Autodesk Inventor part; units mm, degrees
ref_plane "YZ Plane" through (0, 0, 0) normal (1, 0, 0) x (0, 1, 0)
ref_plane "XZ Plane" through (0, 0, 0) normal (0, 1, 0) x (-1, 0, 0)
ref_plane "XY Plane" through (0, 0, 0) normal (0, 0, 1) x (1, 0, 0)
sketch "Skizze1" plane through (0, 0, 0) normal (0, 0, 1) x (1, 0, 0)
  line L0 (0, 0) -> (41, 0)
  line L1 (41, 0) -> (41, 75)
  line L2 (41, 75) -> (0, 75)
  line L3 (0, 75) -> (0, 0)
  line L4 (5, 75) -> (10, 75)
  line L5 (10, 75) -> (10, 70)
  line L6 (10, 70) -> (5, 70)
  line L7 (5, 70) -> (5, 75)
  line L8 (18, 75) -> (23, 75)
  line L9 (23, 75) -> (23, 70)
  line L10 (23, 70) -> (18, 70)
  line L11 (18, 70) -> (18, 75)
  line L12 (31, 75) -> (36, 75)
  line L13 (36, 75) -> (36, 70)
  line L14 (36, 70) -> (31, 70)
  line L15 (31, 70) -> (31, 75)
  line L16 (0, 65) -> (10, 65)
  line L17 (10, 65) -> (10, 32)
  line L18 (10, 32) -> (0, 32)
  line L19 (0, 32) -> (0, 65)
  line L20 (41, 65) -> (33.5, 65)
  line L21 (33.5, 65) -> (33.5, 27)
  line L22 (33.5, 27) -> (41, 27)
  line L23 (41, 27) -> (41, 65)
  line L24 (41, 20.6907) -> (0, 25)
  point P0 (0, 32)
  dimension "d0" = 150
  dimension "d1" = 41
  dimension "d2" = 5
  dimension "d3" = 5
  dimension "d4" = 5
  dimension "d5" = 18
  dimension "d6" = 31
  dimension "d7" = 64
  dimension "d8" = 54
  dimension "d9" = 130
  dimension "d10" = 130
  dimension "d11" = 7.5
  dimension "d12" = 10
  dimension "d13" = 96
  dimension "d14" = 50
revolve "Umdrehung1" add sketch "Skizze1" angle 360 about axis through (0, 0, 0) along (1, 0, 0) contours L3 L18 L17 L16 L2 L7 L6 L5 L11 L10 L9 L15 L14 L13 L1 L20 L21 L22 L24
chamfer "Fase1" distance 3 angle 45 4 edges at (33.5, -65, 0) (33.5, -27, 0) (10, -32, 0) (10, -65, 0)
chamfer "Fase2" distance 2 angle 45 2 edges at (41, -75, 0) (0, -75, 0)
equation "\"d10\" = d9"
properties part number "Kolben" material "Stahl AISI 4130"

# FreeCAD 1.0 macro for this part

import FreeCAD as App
import Part
import Sketcher

V = App.Vector
Q = App.Units.Quantity


def edges_at(feature, points):
    """Names of the edges that pass closest to the given points."""
    edges = feature.Shape.Edges
    near = lambda p: min(range(len(edges)), key=lambda i: edges[i].distToShape(Part.Vertex(*p))[0])
    return sorted({f"Edge{near(p) + 1}" for p in points})

doc = App.newDocument("Part")
body = doc.addObject("PartDesign::Body", "Body")

sketch1 = body.newObject("Sketcher::SketchObject", "Sketch")
sketch1.AttachmentSupport = (doc.getObject("XY_Plane"), [""])
sketch1.MapMode = "FlatFace"
sketch1.addGeometry(Part.LineSegment(V(0, 32, 0), V(0, 25, 0)), False)
sketch1.addGeometry(Part.LineSegment(V(0, 25, 0), V(41, 20.6907, 0)), False)
sketch1.addGeometry(Part.LineSegment(V(41, 20.6907, 0), V(41, 27, 0)), False)
sketch1.addGeometry(Part.LineSegment(V(41, 27, 0), V(33.5, 27, 0)), False)
sketch1.addGeometry(Part.LineSegment(V(33.5, 27, 0), V(33.5, 65, 0)), False)
sketch1.addGeometry(Part.LineSegment(V(33.5, 65, 0), V(41, 65, 0)), False)
sketch1.addGeometry(Part.LineSegment(V(41, 65, 0), V(41, 75, 0)), False)
sketch1.addGeometry(Part.LineSegment(V(41, 75, 0), V(36, 75, 0)), False)
sketch1.addGeometry(Part.LineSegment(V(36, 75, 0), V(36, 70, 0)), False)
sketch1.addGeometry(Part.LineSegment(V(36, 70, 0), V(31, 70, 0)), False)
sketch1.addGeometry(Part.LineSegment(V(31, 70, 0), V(31, 75, 0)), False)
sketch1.addGeometry(Part.LineSegment(V(31, 75, 0), V(23, 75, 0)), False)
sketch1.addGeometry(Part.LineSegment(V(23, 75, 0), V(23, 70, 0)), False)
sketch1.addGeometry(Part.LineSegment(V(23, 70, 0), V(18, 70, 0)), False)
sketch1.addGeometry(Part.LineSegment(V(18, 70, 0), V(18, 75, 0)), False)
sketch1.addGeometry(Part.LineSegment(V(18, 75, 0), V(10, 75, 0)), False)
sketch1.addGeometry(Part.LineSegment(V(10, 75, 0), V(10, 70, 0)), False)
sketch1.addGeometry(Part.LineSegment(V(10, 70, 0), V(5, 70, 0)), False)
sketch1.addGeometry(Part.LineSegment(V(5, 70, 0), V(5, 75, 0)), False)
sketch1.addGeometry(Part.LineSegment(V(5, 75, 0), V(0, 75, 0)), False)
sketch1.addGeometry(Part.LineSegment(V(0, 75, 0), V(0, 65, 0)), False)
sketch1.addGeometry(Part.LineSegment(V(0, 65, 0), V(10, 65, 0)), False)
sketch1.addGeometry(Part.LineSegment(V(10, 65, 0), V(10, 32, 0)), False)
sketch1.addGeometry(Part.LineSegment(V(10, 32, 0), V(0, 32, 0)), False)
sketch1.addConstraint(Sketcher.Constraint("Coincident", 0, 2, 1, 1))
sketch1.addConstraint(Sketcher.Constraint("Coincident", 1, 2, 2, 1))
sketch1.addConstraint(Sketcher.Constraint("Coincident", 2, 2, 3, 1))
sketch1.addConstraint(Sketcher.Constraint("Coincident", 3, 2, 4, 1))
sketch1.addConstraint(Sketcher.Constraint("Coincident", 4, 2, 5, 1))
sketch1.addConstraint(Sketcher.Constraint("Coincident", 5, 2, 6, 1))
sketch1.addConstraint(Sketcher.Constraint("Coincident", 6, 2, 7, 1))
sketch1.addConstraint(Sketcher.Constraint("Coincident", 7, 2, 8, 1))
sketch1.addConstraint(Sketcher.Constraint("Coincident", 8, 2, 9, 1))
sketch1.addConstraint(Sketcher.Constraint("Coincident", 9, 2, 10, 1))
sketch1.addConstraint(Sketcher.Constraint("Coincident", 10, 2, 11, 1))
sketch1.addConstraint(Sketcher.Constraint("Coincident", 11, 2, 12, 1))
sketch1.addConstraint(Sketcher.Constraint("Coincident", 12, 2, 13, 1))
sketch1.addConstraint(Sketcher.Constraint("Coincident", 13, 2, 14, 1))
sketch1.addConstraint(Sketcher.Constraint("Coincident", 14, 2, 15, 1))
sketch1.addConstraint(Sketcher.Constraint("Coincident", 15, 2, 16, 1))
sketch1.addConstraint(Sketcher.Constraint("Coincident", 16, 2, 17, 1))
sketch1.addConstraint(Sketcher.Constraint("Coincident", 17, 2, 18, 1))
sketch1.addConstraint(Sketcher.Constraint("Coincident", 18, 2, 19, 1))
sketch1.addConstraint(Sketcher.Constraint("Coincident", 19, 2, 20, 1))
sketch1.addConstraint(Sketcher.Constraint("Coincident", 20, 2, 21, 1))
sketch1.addConstraint(Sketcher.Constraint("Coincident", 21, 2, 22, 1))
sketch1.addConstraint(Sketcher.Constraint("Coincident", 22, 2, 23, 1))
sketch1.addConstraint(Sketcher.Constraint("Coincident", 23, 2, 0, 1))
sketch1.addConstraint(Sketcher.Constraint("Vertical", 0))
sketch1.addConstraint(Sketcher.Constraint("Vertical", 2))
sketch1.addConstraint(Sketcher.Constraint("Horizontal", 3))
sketch1.addConstraint(Sketcher.Constraint("Vertical", 4))
sketch1.addConstraint(Sketcher.Constraint("Horizontal", 5))
sketch1.addConstraint(Sketcher.Constraint("Vertical", 6))
sketch1.addConstraint(Sketcher.Constraint("Horizontal", 7))
sketch1.addConstraint(Sketcher.Constraint("Vertical", 8))
sketch1.addConstraint(Sketcher.Constraint("Horizontal", 9))
sketch1.addConstraint(Sketcher.Constraint("Vertical", 10))
sketch1.addConstraint(Sketcher.Constraint("Horizontal", 11))
sketch1.addConstraint(Sketcher.Constraint("Vertical", 12))
sketch1.addConstraint(Sketcher.Constraint("Horizontal", 13))
sketch1.addConstraint(Sketcher.Constraint("Vertical", 14))
sketch1.addConstraint(Sketcher.Constraint("Horizontal", 15))
sketch1.addConstraint(Sketcher.Constraint("Vertical", 16))
sketch1.addConstraint(Sketcher.Constraint("Horizontal", 17))
sketch1.addConstraint(Sketcher.Constraint("Vertical", 18))
sketch1.addConstraint(Sketcher.Constraint("Horizontal", 19))
sketch1.addConstraint(Sketcher.Constraint("Vertical", 20))
sketch1.addConstraint(Sketcher.Constraint("Horizontal", 21))
sketch1.addConstraint(Sketcher.Constraint("Vertical", 22))
sketch1.addConstraint(Sketcher.Constraint("Horizontal", 23))
sketch1.addConstraint(Sketcher.Constraint("PointOnObject", 0, 2, -2))
sketch1.addConstraint(Sketcher.Constraint("PointOnObject", 19, 2, -2))
sketch1.addConstraint(Sketcher.Constraint("Horizontal", 7, 2, 10, 2))
sketch1.addConstraint(Sketcher.Constraint("Horizontal", 9, 2, 12, 2))
sketch1.addConstraint(Sketcher.Constraint("Horizontal", 11, 2, 14, 2))
sketch1.addConstraint(Sketcher.Constraint("Horizontal", 13, 2, 16, 2))
sketch1.addConstraint(Sketcher.Constraint("Horizontal", 15, 2, 18, 2))
sketch1.addConstraint(Sketcher.Constraint("Horizontal", 5, 2, 20, 2))
sketch1.addConstraint(Sketcher.Constraint("Vertical", 2, 2, 5, 2))
sketch1.addConstraint(Sketcher.Constraint("Vertical", 16, 2, 21, 2))
sketch1.addConstraint(Sketcher.Constraint("Equal", 7, 9))
sketch1.addConstraint(Sketcher.Constraint("Equal", 9, 13))
sketch1.addConstraint(Sketcher.Constraint("Equal", 11, 15))
sketch1.addConstraint(Sketcher.Constraint("Equal", 13, 17))
sketch1.addConstraint(Sketcher.Constraint("Equal", 17, 19))
sketch1.addConstraint(Sketcher.Constraint("Equal", 23, 6))
sketch1.addConstraint(Sketcher.Constraint("Equal", 19, 8))
sketch1.addConstraint(Sketcher.Constraint("DistanceX", 7, 2, 7, 1, Q("5 mm")))
sketch1.addConstraint(Sketcher.Constraint("DistanceX", 3, 2, 3, 1, Q("7.5 mm")))
sketch1.addConstraint(Sketcher.Constraint("DistanceX", -1, 1, 1, 2, Q("41 mm")))
sketch1.addConstraint(Sketcher.Constraint("DistanceY", 3, 2, 22, 2, Q("5 mm")))
sketch1.addConstraint(Sketcher.Constraint("DistanceY", 0, 2, 0, 1, Q("7 mm")))
sketch1.addConstraint(Sketcher.Constraint("DistanceY", 4, 1, 4, 2, Q("38 mm")))
sketch1.addConstraint(Sketcher.Constraint("Angle", 1, Q("-6 deg")))
sketch1.addConstraint(Sketcher.Constraint("DistanceY", -1, 1, 0, 2, Q("25 mm")))
revolution = body.newObject("PartDesign::Revolution", "Revolution")
revolution.Profile = sketch1
revolution.ReferenceAxis = (sketch1, ["H_Axis"])
revolution.Angle = 360
doc.recompute()

chamfer = body.newObject("PartDesign::Chamfer", "Chamfer")
chamfer.Base = (revolution, edges_at(revolution, [
    (33.5, -65, 0),
    (33.5, -27, 0),
    (10, -32, 0),
    (10, -65, 0),
]))
chamfer.Size = 3
doc.recompute()

chamfer2 = body.newObject("PartDesign::Chamfer", "Chamfer001")
chamfer2.Base = (chamfer, edges_at(chamfer, [(41, -75, 0), (0, -75, 0)]))
chamfer2.Size = 2

doc.recompute()
